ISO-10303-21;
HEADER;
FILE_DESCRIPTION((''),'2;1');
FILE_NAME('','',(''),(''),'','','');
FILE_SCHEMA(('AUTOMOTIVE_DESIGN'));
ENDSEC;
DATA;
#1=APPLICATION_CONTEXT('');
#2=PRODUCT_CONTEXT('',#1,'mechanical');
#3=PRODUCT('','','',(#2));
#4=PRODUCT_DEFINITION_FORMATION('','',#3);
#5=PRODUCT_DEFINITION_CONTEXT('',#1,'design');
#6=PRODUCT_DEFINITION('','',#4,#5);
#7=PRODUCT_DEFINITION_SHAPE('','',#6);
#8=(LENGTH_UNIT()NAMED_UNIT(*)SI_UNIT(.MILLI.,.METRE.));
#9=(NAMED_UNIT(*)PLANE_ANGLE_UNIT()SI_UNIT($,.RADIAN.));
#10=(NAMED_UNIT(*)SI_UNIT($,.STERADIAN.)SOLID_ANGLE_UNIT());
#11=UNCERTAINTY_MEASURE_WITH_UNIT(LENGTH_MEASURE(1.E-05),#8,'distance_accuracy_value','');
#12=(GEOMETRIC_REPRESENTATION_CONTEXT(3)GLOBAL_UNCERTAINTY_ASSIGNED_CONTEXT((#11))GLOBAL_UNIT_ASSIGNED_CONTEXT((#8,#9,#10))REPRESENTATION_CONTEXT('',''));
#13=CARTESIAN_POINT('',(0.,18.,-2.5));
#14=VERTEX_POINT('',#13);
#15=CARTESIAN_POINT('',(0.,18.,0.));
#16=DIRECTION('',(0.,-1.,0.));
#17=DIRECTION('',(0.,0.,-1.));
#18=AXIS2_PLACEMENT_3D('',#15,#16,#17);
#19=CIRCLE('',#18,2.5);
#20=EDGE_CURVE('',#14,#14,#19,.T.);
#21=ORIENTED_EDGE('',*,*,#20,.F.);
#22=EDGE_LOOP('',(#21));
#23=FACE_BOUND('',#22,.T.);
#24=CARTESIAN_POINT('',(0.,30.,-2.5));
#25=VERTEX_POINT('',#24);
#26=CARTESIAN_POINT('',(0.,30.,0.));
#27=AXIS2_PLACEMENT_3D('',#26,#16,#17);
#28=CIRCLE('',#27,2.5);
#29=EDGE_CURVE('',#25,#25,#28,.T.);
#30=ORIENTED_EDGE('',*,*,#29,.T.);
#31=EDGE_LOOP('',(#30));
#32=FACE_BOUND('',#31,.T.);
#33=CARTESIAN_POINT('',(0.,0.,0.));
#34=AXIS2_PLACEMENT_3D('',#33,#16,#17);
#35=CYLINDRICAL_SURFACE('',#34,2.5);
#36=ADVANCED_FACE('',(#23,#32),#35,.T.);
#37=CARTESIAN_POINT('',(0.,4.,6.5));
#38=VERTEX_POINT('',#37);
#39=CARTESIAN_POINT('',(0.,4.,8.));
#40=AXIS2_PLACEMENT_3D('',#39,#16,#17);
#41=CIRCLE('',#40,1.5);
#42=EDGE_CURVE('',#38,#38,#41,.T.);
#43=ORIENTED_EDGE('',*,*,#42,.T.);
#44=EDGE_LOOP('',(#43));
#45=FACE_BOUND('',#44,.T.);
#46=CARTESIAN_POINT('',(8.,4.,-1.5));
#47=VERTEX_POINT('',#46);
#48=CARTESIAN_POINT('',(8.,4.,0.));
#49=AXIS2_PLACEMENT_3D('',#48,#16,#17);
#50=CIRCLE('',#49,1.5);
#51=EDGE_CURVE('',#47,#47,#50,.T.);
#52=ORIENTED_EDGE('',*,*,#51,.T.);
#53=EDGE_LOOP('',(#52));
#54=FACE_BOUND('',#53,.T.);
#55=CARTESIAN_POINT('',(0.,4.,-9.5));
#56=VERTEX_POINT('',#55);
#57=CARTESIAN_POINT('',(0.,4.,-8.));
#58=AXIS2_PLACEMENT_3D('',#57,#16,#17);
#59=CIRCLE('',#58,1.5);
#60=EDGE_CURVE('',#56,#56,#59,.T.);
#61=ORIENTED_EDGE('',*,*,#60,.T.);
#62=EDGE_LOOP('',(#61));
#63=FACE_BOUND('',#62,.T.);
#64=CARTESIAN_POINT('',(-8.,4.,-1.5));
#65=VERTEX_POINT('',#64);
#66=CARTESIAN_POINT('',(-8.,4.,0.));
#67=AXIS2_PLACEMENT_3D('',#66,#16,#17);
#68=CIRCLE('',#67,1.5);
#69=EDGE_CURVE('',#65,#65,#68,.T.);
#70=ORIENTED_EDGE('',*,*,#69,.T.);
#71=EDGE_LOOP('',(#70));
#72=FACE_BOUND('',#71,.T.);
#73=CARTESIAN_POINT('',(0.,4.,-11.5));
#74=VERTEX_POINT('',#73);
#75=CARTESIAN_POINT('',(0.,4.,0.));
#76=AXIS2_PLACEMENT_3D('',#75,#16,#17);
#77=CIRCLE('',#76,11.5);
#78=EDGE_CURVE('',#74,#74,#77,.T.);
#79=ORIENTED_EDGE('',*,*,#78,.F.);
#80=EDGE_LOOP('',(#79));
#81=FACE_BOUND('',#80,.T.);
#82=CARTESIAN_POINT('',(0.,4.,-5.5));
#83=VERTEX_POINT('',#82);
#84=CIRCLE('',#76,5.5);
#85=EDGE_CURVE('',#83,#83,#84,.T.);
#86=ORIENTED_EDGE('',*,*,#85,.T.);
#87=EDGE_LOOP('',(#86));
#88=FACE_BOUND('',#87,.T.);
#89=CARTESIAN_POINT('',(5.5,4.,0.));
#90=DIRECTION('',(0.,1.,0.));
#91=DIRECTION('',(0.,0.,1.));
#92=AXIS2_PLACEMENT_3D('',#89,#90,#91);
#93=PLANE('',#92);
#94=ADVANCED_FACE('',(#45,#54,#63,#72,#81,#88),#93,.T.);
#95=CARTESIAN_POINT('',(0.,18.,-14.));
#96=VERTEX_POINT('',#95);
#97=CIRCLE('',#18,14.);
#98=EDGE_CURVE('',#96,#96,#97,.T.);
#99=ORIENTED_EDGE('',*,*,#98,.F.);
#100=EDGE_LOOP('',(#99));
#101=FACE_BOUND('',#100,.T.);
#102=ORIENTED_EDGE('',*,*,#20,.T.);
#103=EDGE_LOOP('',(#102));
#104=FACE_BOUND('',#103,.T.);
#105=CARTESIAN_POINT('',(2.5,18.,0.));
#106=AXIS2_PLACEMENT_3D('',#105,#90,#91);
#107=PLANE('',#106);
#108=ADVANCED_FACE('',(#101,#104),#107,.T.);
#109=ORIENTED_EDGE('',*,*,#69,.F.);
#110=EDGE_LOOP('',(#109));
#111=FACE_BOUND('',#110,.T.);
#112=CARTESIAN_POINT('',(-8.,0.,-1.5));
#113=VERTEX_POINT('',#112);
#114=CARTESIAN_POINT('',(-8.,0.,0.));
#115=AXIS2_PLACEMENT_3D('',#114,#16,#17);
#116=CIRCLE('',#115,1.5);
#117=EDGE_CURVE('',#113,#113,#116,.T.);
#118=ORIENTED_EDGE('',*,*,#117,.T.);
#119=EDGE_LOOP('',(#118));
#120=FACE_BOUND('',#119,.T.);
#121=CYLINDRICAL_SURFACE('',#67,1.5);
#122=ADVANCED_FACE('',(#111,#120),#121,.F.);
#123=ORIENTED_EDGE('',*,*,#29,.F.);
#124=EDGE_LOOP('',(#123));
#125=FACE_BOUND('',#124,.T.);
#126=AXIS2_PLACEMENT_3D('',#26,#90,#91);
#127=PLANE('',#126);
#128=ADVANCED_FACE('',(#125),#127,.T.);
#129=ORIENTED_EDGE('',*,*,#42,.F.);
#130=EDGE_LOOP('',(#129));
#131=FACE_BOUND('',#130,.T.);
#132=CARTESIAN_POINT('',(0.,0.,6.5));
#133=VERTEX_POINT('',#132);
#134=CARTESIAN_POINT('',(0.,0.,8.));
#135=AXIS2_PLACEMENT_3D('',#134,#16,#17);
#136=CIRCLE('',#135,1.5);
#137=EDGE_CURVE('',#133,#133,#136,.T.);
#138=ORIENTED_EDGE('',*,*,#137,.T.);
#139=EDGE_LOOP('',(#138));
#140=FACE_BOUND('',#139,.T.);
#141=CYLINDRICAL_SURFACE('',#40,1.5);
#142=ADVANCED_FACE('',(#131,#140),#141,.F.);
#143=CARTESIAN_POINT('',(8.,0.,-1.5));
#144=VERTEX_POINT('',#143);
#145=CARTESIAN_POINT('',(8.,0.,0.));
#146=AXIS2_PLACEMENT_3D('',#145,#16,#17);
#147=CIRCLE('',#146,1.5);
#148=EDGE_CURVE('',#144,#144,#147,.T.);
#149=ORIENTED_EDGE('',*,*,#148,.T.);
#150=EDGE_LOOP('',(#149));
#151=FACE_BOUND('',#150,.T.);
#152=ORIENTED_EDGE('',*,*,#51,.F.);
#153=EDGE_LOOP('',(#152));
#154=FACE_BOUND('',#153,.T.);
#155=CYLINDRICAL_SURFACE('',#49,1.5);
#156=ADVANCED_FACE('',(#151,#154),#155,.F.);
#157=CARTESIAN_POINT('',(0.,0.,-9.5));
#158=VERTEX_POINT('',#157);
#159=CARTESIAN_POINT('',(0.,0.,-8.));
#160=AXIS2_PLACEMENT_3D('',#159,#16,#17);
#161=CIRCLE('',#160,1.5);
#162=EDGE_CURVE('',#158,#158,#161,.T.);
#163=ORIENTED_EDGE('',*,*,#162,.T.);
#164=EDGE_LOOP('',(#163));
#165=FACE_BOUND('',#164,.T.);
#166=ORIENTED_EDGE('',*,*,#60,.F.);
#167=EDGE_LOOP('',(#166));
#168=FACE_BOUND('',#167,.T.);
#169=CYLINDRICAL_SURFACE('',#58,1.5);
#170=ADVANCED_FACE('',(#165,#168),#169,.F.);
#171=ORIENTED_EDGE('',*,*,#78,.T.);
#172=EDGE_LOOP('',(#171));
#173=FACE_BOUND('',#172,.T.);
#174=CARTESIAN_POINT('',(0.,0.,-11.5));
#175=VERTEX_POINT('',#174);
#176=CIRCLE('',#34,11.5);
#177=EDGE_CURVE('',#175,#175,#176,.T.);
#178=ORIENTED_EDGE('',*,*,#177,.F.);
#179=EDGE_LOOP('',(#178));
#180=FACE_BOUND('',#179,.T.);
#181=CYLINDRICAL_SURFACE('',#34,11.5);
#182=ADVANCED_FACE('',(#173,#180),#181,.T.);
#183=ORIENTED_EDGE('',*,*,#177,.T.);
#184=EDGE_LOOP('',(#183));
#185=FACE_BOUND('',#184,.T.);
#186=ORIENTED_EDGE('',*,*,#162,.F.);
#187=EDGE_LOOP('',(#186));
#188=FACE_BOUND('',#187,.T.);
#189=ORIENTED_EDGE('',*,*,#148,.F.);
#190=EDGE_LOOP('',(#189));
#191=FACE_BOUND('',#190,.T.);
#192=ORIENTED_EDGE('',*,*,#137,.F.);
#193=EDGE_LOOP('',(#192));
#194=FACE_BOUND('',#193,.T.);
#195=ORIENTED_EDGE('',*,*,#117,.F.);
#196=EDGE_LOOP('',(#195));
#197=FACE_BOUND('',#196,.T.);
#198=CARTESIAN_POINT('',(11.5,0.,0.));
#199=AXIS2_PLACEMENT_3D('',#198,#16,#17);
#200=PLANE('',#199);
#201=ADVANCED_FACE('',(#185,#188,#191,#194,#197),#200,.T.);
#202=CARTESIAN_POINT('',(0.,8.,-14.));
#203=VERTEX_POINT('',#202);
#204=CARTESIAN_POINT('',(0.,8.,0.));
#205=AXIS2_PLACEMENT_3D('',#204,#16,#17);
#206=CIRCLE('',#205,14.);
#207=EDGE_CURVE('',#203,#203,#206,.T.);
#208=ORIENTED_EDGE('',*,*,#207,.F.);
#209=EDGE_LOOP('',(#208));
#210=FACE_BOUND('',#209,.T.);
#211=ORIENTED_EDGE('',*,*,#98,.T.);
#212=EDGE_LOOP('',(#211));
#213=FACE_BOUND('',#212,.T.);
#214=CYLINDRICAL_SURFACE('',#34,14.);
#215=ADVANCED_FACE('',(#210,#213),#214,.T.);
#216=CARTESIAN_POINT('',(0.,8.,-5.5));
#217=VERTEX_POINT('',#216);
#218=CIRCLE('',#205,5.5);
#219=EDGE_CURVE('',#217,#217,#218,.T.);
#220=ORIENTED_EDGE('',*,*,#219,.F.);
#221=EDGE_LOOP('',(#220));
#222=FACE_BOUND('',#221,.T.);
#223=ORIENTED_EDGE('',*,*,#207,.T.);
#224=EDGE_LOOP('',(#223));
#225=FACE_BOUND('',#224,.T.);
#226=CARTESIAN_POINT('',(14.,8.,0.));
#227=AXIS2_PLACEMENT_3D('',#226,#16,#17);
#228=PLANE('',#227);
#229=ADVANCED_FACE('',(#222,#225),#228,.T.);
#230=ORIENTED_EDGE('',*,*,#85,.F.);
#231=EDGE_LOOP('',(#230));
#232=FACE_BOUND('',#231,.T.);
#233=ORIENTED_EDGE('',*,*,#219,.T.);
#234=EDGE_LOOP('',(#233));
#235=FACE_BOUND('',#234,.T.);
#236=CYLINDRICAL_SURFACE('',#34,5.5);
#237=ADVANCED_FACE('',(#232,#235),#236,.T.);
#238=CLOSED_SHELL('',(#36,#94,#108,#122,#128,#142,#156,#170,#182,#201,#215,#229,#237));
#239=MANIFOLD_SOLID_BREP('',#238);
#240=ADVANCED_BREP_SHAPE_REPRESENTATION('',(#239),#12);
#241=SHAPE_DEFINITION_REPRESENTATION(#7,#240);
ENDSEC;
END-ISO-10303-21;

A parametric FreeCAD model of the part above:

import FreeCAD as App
import Part
import Sketcher

V = App.Vector


def add_polygon(sketch, points):
    """Adds a closed chain of lines whose ends are joined by coincident constraints."""
    first, n = sketch.GeometryCount, len(points)
    for a, b in zip(points, points[1:] + points[:1]):
        sketch.addGeometry(Part.LineSegment(App.Vector(*a, 0), App.Vector(*b, 0)), False)
    for i in range(n):
        sketch.addConstraint(Sketcher.Constraint("Coincident", first + i, 2, first + (i + 1) % n, 1))

doc = App.newDocument("Part")
body = doc.addObject("PartDesign::Body", "Body")

sketch1 = body.newObject("Sketcher::SketchObject", "Sketch")
sketch1.AttachmentSupport = (doc.getObject("XY_Plane"), [""])
sketch1.MapMode = "FlatFace"
add_polygon(sketch1, [(2.5, 30), (0, 30), (0, 0), (11.5, 0), (11.5, 4), (5.5, 4), (5.5, 8), (14, 8), (14, 18), (2.5, 18)])
sketch1.addConstraint([
    Sketcher.Constraint("Horizontal", 0),
    Sketcher.Constraint("Vertical", 1),
    Sketcher.Constraint("Horizontal", 2),
    Sketcher.Constraint("Vertical", 3),
    Sketcher.Constraint("Horizontal", 4),
    Sketcher.Constraint("Vertical", 5),
    Sketcher.Constraint("Horizontal", 6),
    Sketcher.Constraint("Vertical", 7),
    Sketcher.Constraint("Horizontal", 8),
    Sketcher.Constraint("Vertical", 9),
    Sketcher.Constraint("Coincident", 1, 2, -1, 1),
    Sketcher.Constraint("Equal", 2, 8),
    Sketcher.Constraint("Equal", 3, 5),
    Sketcher.Constraint("DistanceX", 4, 2, 4, 1, 6.0),
    Sketcher.Constraint("DistanceY", 1, 2, 1, 1, 30.0),
    Sketcher.Constraint("DistanceY", 3, 1, 3, 2, 4.0),
    Sketcher.Constraint("DistanceY", 7, 1, 7, 2, 10.0),
    Sketcher.Constraint("DistanceX", 0, 2, 0, 1, 2.5),
    Sketcher.Constraint("DistanceX", 2, 1, 2, 2, 11.5),
])
revolution = body.newObject("PartDesign::Revolution", "Revolution")
revolution.Profile = sketch1
revolution.ReferenceAxis = (sketch1, ["V_Axis"])
revolution.Angle = 360

sketch2 = body.newObject("Sketcher::SketchObject", "Sketch001")
sketch2.AttachmentSupport = (doc.getObject("XZ_Plane"), [""])
sketch2.MapMode = "FlatFace"
sketch2.addGeometry([
    Part.Circle(V(0, 8, 0), V(0, 0, 1), 1.5),
    Part.Circle(V(8, 0, 0), V(0, 0, 1), 1.5),
    Part.Circle(V(0, -8, 0), V(0, 0, 1), 1.5),
    Part.Circle(V(-8, 0, 0), V(0, 0, 1), 1.5),
], False)
sketch2.addConstraint([
    Sketcher.Constraint("Equal", 0, 1),
    Sketcher.Constraint("Equal", 1, 2),
    Sketcher.Constraint("Equal", 2, 3),
    Sketcher.Constraint("Symmetric", 0, 3, 2, 3, -1, 1),
    Sketcher.Constraint("Symmetric", 1, 3, 3, 3, -1, 1),
    Sketcher.Constraint("PointOnObject", 0, 3, -2),
    Sketcher.Constraint("PointOnObject", 1, 3, -1),
    Sketcher.Constraint("Diameter", 0, 3.0),
    Sketcher.Constraint("DistanceY", -1, 1, 0, 3, 8.0),
    Sketcher.Constraint("DistanceX", -1, 1, 1, 3, 8.0),
])
pocket1 = body.newObject("PartDesign::Pocket", "Pocket")
pocket1.Profile = sketch2
pocket1.Length = 4

doc.recompute()
